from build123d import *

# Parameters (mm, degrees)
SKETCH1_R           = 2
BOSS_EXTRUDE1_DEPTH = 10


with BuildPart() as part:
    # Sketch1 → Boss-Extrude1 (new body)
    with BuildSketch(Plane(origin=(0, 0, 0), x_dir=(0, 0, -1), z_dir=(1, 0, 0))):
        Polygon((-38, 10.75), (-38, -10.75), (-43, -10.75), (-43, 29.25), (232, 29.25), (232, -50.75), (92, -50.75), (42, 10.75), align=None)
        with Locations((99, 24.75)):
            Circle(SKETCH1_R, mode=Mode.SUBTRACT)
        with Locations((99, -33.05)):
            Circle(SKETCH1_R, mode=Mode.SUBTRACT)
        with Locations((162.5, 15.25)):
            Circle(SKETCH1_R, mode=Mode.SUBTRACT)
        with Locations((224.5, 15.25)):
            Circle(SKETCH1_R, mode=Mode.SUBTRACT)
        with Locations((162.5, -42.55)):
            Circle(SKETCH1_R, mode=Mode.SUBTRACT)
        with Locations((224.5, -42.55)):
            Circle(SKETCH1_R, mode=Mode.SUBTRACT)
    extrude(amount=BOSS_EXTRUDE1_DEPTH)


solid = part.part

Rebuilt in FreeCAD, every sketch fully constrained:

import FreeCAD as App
import Part
import Sketcher

V = App.Vector

doc = App.newDocument("Part")
body = doc.addObject("PartDesign::Body", "Body")

# Sketch on YZ plane
sketch1 = body.newObject("Sketcher::SketchObject", "Sketch")
sketch1.AttachmentSupport = (doc.getObject("YZ_Plane"), [""])
sketch1.MapMode = "FlatFace"
sketch1.addGeometry(Part.LineSegment(V(-10.75, 38, 0), V(10.75, 38, 0)), False)
sketch1.addGeometry(Part.LineSegment(V(10.75, 38, 0), V(10.75, -42, 0)), False)
sketch1.addGeometry(Part.LineSegment(V(10.75, -42, 0), V(-50.75, -92, 0)), False)
sketch1.addGeometry(Part.LineSegment(V(-50.75, -92, 0), V(-50.75, -232, 0)), False)
sketch1.addGeometry(Part.LineSegment(V(-50.75, -232, 0), V(29.25, -232, 0)), False)
sketch1.addGeometry(Part.LineSegment(V(29.25, -232, 0), V(29.25, 43, 0)), False)
sketch1.addGeometry(Part.LineSegment(V(29.25, 43, 0), V(-10.75, 43, 0)), False)
sketch1.addGeometry(Part.LineSegment(V(-10.75, 43, 0), V(-10.75, 38, 0)), False)
sketch1.addGeometry(Part.Circle(V(-42.55, -224.5, 0), V(0, 0, 1), 2), False)
sketch1.addGeometry(Part.Circle(V(-42.55, -162.5, 0), V(0, 0, 1), 2), False)
sketch1.addGeometry(Part.Circle(V(-33.05, -99, 0), V(0, 0, 1), 2), False)
sketch1.addGeometry(Part.Circle(V(15.25, -224.5, 0), V(0, 0, 1), 2), False)
sketch1.addGeometry(Part.Circle(V(15.25, -162.5, 0), V(0, 0, 1), 2), False)
sketch1.addGeometry(Part.Circle(V(24.75, -99, 0), V(0, 0, 1), 2), False)
sketch1.addConstraint(Sketcher.Constraint("Coincident", 0, 2, 1, 1))
sketch1.addConstraint(Sketcher.Constraint("Coincident", 1, 2, 2, 1))
sketch1.addConstraint(Sketcher.Constraint("Coincident", 2, 2, 3, 1))
sketch1.addConstraint(Sketcher.Constraint("Coincident", 3, 2, 4, 1))
sketch1.addConstraint(Sketcher.Constraint("Coincident", 4, 2, 5, 1))
sketch1.addConstraint(Sketcher.Constraint("Coincident", 5, 2, 6, 1))
sketch1.addConstraint(Sketcher.Constraint("Coincident", 6, 2, 7, 1))
sketch1.addConstraint(Sketcher.Constraint("Coincident", 7, 2, 0, 1))
sketch1.addConstraint(Sketcher.Constraint("Horizontal", 0))
sketch1.addConstraint(Sketcher.Constraint("Vertical", 1))
sketch1.addConstraint(Sketcher.Constraint("Vertical", 3))
sketch1.addConstraint(Sketcher.Constraint("Horizontal", 4))
sketch1.addConstraint(Sketcher.Constraint("Vertical", 5))
sketch1.addConstraint(Sketcher.Constraint("Horizontal", 6))
sketch1.addConstraint(Sketcher.Constraint("Vertical", 7))
sketch1.addConstraint(Sketcher.Constraint("Equal", 8, 9))
sketch1.addConstraint(Sketcher.Constraint("Equal", 9, 10))
sketch1.addConstraint(Sketcher.Constraint("Equal", 10, 11))
sketch1.addConstraint(Sketcher.Constraint("Equal", 11, 12))
sketch1.addConstraint(Sketcher.Constraint("Equal", 12, 13))
sketch1.addConstraint(Sketcher.Constraint("Horizontal", 8, 3, 11, 3))
sketch1.addConstraint(Sketcher.Constraint("Horizontal", 9, 3, 12, 3))
sketch1.addConstraint(Sketcher.Constraint("Horizontal", 10, 3, 13, 3))
sketch1.addConstraint(Sketcher.Constraint("Vertical", 8, 3, 9, 3))
sketch1.addConstraint(Sketcher.Constraint("Vertical", 11, 3, 12, 3))
sketch1.addConstraint(Sketcher.Constraint("Equal", 4, 1))
sketch1.addConstraint(Sketcher.Constraint("Diameter", 8, 4.0))
sketch1.addConstraint(Sketcher.Constraint("DistanceX", 4, 1, 4, 2, 80.0))
sketch1.addConstraint(Sketcher.Constraint("DistanceX", 6, 2, 6, 1, 40.0))
sketch1.addConstraint(Sketcher.Constraint("DistanceY", 3, 2, 3, 1, 140.0))
sketch1.addConstraint(Sketcher.Constraint("DistanceY", 5, 1, 5, 2, 275.0))
sketch1.addConstraint(Sketcher.Constraint("DistanceY", 7, 2, 7, 1, 5.0))
sketch1.addConstraint(Sketcher.Constraint("DistanceX", 0, 1, 0, 2, 21.5))
sketch1.addConstraint(Sketcher.Constraint("DistanceY", 10, 3, -1, 1, 99.0))
sketch1.addConstraint(Sketcher.Constraint("DistanceY", -1, 1, 0, 2, 38.0))
sketch1.addConstraint(Sketcher.Constraint("DistanceY", 8, 3, 9, 3, 62.0))
sketch1.addConstraint(Sketcher.Constraint("DistanceX", 0, 2, 13, 3, 14.0))
sketch1.addConstraint(Sketcher.Constraint("DistanceX", 2, 2, 12, 3, 66.0))
sketch1.addConstraint(Sketcher.Constraint("DistanceY", 8, 3, -1, 1, 224.5))
sketch1.addConstraint(Sketcher.Constraint("DistanceX", 9, 3, 10, 3, 9.5))
sketch1.addConstraint(Sketcher.Constraint("DistanceX", 8, 3, 11, 3, 57.8))
sketch1.addConstraint(Sketcher.Constraint("DistanceX", 8, 3, -1, 1, 42.55))
pad1 = body.newObject("PartDesign::Pad", "Pad")
pad1.Profile = sketch1
pad1.Length = 10

doc.recompute()
